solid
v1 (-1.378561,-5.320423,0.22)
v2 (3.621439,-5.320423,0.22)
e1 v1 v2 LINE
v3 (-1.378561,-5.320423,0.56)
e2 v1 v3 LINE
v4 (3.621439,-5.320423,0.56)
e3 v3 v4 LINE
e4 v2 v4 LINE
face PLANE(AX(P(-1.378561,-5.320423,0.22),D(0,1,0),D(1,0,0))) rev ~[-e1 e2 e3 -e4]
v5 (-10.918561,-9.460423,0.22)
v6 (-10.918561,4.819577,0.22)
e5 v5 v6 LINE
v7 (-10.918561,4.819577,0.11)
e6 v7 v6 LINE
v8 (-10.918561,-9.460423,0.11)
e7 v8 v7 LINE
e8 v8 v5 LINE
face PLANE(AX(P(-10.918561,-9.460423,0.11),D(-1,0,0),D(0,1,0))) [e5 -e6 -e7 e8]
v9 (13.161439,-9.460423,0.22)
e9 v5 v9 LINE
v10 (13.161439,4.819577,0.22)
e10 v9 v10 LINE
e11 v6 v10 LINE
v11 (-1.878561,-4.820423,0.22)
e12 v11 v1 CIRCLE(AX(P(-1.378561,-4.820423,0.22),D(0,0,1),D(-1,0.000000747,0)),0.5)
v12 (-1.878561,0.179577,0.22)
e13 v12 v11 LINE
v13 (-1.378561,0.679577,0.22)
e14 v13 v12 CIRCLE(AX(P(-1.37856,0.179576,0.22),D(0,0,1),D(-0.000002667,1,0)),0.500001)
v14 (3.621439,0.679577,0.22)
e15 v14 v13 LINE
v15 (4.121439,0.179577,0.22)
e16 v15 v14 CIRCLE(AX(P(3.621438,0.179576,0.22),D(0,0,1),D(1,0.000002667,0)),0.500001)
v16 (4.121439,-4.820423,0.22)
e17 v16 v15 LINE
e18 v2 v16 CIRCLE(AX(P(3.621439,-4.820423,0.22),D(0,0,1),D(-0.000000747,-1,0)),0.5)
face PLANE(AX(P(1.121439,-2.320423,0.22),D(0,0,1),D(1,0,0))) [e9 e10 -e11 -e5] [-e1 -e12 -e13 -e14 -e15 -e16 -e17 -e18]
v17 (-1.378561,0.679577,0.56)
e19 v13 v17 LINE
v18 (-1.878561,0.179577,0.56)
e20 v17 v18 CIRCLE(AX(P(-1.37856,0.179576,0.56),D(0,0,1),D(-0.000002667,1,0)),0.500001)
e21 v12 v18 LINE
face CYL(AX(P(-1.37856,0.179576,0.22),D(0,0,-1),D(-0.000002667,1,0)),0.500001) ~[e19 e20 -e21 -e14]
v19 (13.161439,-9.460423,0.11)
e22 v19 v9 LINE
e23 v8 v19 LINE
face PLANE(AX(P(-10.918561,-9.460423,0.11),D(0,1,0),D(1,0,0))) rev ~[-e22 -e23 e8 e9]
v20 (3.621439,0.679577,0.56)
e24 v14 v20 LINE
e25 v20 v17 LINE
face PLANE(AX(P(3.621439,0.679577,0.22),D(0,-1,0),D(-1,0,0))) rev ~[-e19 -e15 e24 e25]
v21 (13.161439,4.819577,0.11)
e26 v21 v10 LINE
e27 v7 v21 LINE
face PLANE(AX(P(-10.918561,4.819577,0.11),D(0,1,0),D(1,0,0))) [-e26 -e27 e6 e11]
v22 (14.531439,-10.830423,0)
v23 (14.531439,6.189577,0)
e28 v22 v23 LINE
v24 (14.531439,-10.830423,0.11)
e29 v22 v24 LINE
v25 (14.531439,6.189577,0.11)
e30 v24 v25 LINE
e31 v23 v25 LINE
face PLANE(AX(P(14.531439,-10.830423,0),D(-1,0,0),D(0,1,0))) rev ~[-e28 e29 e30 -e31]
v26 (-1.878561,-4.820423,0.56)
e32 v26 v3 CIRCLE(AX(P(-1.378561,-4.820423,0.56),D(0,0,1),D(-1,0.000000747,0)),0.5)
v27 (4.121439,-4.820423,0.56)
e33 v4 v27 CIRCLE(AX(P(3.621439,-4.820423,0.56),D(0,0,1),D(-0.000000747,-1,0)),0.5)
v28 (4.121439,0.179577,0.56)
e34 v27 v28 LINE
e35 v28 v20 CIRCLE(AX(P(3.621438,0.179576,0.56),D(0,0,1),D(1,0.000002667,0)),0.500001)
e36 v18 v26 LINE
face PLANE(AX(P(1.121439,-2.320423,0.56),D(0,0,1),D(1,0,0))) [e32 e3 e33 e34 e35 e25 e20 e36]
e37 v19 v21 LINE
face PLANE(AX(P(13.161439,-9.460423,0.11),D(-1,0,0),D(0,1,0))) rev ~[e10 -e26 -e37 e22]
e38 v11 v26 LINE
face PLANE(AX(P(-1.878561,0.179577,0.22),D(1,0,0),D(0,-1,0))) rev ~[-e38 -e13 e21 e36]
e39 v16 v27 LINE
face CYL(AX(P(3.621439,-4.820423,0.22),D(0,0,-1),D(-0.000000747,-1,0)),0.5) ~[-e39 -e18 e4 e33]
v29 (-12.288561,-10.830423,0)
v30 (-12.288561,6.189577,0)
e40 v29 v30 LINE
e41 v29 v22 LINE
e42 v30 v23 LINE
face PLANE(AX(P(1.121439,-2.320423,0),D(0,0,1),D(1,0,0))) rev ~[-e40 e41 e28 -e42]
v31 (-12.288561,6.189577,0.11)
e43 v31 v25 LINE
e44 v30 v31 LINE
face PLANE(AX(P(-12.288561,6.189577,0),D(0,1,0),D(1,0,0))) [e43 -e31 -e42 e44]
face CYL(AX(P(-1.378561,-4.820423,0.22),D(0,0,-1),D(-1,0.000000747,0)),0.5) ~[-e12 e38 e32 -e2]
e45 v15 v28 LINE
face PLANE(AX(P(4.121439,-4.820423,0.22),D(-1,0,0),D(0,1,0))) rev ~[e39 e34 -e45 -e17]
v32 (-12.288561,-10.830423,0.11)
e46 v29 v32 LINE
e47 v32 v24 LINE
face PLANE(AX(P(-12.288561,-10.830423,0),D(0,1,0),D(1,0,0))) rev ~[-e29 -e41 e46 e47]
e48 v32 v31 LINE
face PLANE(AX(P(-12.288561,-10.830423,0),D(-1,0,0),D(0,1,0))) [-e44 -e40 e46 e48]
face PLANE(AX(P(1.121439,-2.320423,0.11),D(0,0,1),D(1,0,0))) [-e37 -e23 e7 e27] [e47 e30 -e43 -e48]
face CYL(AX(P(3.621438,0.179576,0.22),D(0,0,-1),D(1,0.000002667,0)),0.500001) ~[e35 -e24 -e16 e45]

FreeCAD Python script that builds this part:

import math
import FreeCAD as App
import Part
import Sketcher


def add_polygon(sketch, points):
    """Adds a closed chain of lines whose ends are joined by coincident constraints."""
    first, n = sketch.GeometryCount, len(points)
    for a, b in zip(points, points[1:] + points[:1]):
        sketch.addGeometry(Part.LineSegment(App.Vector(*a, 0), App.Vector(*b, 0)), False)
    for i in range(n):
        sketch.addConstraint(Sketcher.Constraint("Coincident", first + i, 2, first + (i + 1) % n, 1))

doc = App.newDocument("Part")
body = doc.addObject("PartDesign::Body", "Body")

# Sketch on XY plane
sketch1 = body.newObject("Sketcher::SketchObject", "Sketch")
sketch1.AttachmentSupport = (doc.getObject("XY_Plane"), [""])
sketch1.MapMode = "FlatFace"
add_polygon(sketch1, [(-12, 6), (-12, -11), (15, -11), (15, 6)])  # lines 0-3
sketch1.addConstraint([
    Sketcher.Constraint("Vertical", 0),
    Sketcher.Constraint("Horizontal", 1),
    Sketcher.Constraint("Vertical", 2),
    Sketcher.Constraint("Horizontal", 3),
    Sketcher.Constraint("DistanceX", 1, 1, 1, 2, 26.82),
    Sketcher.Constraint("DistanceY", 0, 2, 0, 1, 17.02),
    Sketcher.Constraint("DistanceX", 0, 2, -1, 1, 12.288561),
    Sketcher.Constraint("DistanceY", 0, 2, -1, 1, 10.830423),
])
pad1 = body.newObject("PartDesign::Pad", "Pad")
pad1.Profile = sketch1
pad1.Length = 0.11

# Sketch on XY plane
sketch2 = body.newObject("Sketcher::SketchObject", "Sketch001")
sketch2.AttachmentSupport = (doc.getObject("XY_Plane"), [""])
sketch2.MapMode = "FlatFace"
sketch2.AttachmentOffset = App.Placement(App.Vector(0, 0, 0.11), App.Rotation())
add_polygon(sketch2, [(-11, 5), (-11, -9), (13, -9), (13, 5)])  # lines 0-3
sketch2.addConstraint([
    Sketcher.Constraint("Vertical", 0),
    Sketcher.Constraint("Horizontal", 1),
    Sketcher.Constraint("Vertical", 2),
    Sketcher.Constraint("Horizontal", 3),
    Sketcher.Constraint("DistanceX", 1, 1, 1, 2, 24.08),
    Sketcher.Constraint("DistanceY", 0, 2, 0, 1, 14.28),
    Sketcher.Constraint("DistanceX", 0, 2, -1, 1, 10.918561),
    Sketcher.Constraint("DistanceY", 0, 2, -1, 1, 9.460423),
])
pad2 = body.newObject("PartDesign::Pad", "Pad001")
pad2.Profile = sketch2
pad2.Length = 0.11

# Sketch on XY plane
sketch3 = body.newObject("Sketcher::SketchObject", "Sketch002")
sketch3.AttachmentSupport = (doc.getObject("XY_Plane"), [""])
sketch3.MapMode = "FlatFace"
sketch3.AttachmentOffset = App.Placement(App.Vector(0, 0, 0.22), App.Rotation())
sketch3.addGeometry([
    Part.LineSegment(App.Vector(3.62, 0.68, 0), App.Vector(-1.38, 0.68, 0)),  # 0
    Part.ArcOfCircle(Part.Circle(App.Vector(-1.38, 0.18, 0), App.Vector(0, 0, 1), 0.5), math.radians(90), math.radians(180)),  # 1
    Part.LineSegment(App.Vector(-1.88, 0.18, 0), App.Vector(-1.88, -4.82, 0)),  # 2
    Part.ArcOfCircle(Part.Circle(App.Vector(-1.38, -4.82, 0), App.Vector(0, 0, 1), 0.5), math.radians(180), math.radians(270)),  # 3
    Part.LineSegment(App.Vector(-1.38, -5.32, 0), App.Vector(3.62, -5.32, 0)),  # 4
    Part.ArcOfCircle(Part.Circle(App.Vector(3.62, -4.82, 0), App.Vector(0, 0, 1), 0.5), math.radians(-90), math.radians(0)),  # 5
    Part.LineSegment(App.Vector(4.12, -4.82, 0), App.Vector(4.12, 0.18, 0)),  # 6
    Part.ArcOfCircle(Part.Circle(App.Vector(3.62, 0.18, 0), App.Vector(0, 0, 1), 0.5), math.radians(0), math.radians(90)),  # 7
], False)
sketch3.addConstraint([
    Sketcher.Constraint("Coincident", 0, 2, 1, 1),
    Sketcher.Constraint("Coincident", 1, 2, 2, 1),
    Sketcher.Constraint("Tangent", 2, 2, 3, 1),
    Sketcher.Constraint("Tangent", 3, 2, 4, 1),
    Sketcher.Constraint("Tangent", 4, 2, 5, 1),
    Sketcher.Constraint("Tangent", 5, 2, 6, 1),
    Sketcher.Constraint("Coincident", 6, 2, 7, 1),
    Sketcher.Constraint("Coincident", 7, 2, 0, 1),
    Sketcher.Constraint("Horizontal", 0),
    Sketcher.Constraint("Vertical", 2),
    Sketcher.Constraint("Horizontal", 4),
    Sketcher.Constraint("Vertical", 6),
    Sketcher.Constraint("Equal", 1, 3),
    Sketcher.Constraint("Equal", 3, 5),
    Sketcher.Constraint("Equal", 5, 7),
    Sketcher.Constraint("Horizontal", 7, 3, 1, 2),
    Sketcher.Constraint("Horizontal", 1, 2, 6, 2),
    Sketcher.Constraint("Vertical", 3, 3, 0, 2),
    Sketcher.Constraint("Vertical", 4, 2, 7, 2),
    Sketcher.Constraint("Equal", 4, 2),
    Sketcher.Constraint("Radius", 1, 0.500001),
    Sketcher.Constraint("DistanceX", 0, 2, 0, 1, 5.0),
    Sketcher.Constraint("DistanceX", 1, 3, -1, 1, 1.37856),
    Sketcher.Constraint("DistanceY", -1, 1, 1, 3, 0.179576),
])
pad3 = body.newObject("PartDesign::Pad", "Pad002")
pad3.Profile = sketch3
pad3.Length = 0.34

doc.recompute()
